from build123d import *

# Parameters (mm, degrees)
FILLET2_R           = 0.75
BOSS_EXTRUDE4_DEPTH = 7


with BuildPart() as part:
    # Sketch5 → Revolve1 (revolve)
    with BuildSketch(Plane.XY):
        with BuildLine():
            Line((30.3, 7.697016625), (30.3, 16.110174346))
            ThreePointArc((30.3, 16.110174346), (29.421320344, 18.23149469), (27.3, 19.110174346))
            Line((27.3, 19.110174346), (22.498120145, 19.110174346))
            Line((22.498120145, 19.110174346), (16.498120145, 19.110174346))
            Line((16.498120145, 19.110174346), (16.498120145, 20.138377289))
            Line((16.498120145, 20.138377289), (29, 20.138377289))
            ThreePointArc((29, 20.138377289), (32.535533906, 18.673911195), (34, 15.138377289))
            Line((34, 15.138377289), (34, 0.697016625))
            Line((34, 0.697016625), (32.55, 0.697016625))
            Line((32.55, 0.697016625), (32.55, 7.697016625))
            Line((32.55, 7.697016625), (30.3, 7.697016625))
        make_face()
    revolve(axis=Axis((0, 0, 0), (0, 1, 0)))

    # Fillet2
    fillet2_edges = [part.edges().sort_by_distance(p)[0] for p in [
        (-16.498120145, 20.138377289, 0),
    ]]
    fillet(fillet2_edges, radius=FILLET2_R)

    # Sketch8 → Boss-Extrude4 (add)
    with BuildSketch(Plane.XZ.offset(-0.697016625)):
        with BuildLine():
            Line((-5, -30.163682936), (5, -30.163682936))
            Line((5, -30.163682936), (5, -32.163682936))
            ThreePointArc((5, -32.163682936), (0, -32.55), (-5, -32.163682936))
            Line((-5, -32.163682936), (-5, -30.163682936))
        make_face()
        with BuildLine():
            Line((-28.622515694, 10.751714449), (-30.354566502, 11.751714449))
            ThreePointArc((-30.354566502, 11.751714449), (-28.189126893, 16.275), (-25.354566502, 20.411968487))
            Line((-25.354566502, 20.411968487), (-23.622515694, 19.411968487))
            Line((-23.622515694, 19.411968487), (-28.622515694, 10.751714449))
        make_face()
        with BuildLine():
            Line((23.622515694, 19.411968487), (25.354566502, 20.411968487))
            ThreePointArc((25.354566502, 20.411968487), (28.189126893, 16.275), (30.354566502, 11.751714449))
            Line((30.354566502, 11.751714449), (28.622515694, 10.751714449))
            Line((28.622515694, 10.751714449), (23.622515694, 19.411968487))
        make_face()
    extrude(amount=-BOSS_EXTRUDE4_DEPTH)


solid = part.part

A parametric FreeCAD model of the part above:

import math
import FreeCAD as App
import Part
import Sketcher

V = App.Vector
Q = App.Units.Quantity


def edges_at(feature, points):
    """Names of the edges that pass closest to the given points."""
    edges = feature.Shape.Edges
    near = lambda p: min(range(len(edges)), key=lambda i: edges[i].distToShape(Part.Vertex(*p))[0])
    return sorted({f"Edge{near(p) + 1}" for p in points})

doc = App.newDocument("Part")
params = doc.addObject("Spreadsheet::Sheet", "Params")
for row, (alias, value) in enumerate([
    ("sketch1_radius", "5 mm"),
    ("sketch1_radius2", "3 mm"),
    ("sketch1_height", "7 mm"),
    ("sketch1_width", "2.25 mm"),
    ("sketch1_width2", "1.45 mm"),
    ("revolution_angle", "360 deg"),
    ("fillet_radius", "0.75 mm"),
    ("sketch2_width", "10 mm"),
    ("sketch2_height", "2 mm"),
    ("sketch2_radius", "32.55 mm"),
    ("sketch2_length", "2 mm"),
    ("sketch2_length2", "10 mm"),
    ("pad1_length", "7 mm"),
], start=1):
    params.set(f"A{row}", alias)
    params.set(f"B{row}", "=" + value)
    params.setAlias(f"B{row}", alias)

body = doc.addObject("PartDesign::Body", "Body")

sketch1 = body.newObject("Sketcher::SketchObject", "Sketch")
sketch1.AttachmentSupport = (doc.getObject("XY_Plane"), [""])
sketch1.MapMode = "FlatFace"
sketch1.addGeometry(Part.LineSegment(V(30.3, 16.1, 0), V(30.3, 7.7, 0)), False)
sketch1.addGeometry(Part.LineSegment(V(30.3, 7.7, 0), V(32.5, 7.7, 0)), False)
sketch1.addGeometry(Part.LineSegment(V(32.5, 7.7, 0), V(32.5, 0.7, 0)), False)
sketch1.addGeometry(Part.LineSegment(V(32.5, 0.7, 0), V(34, 0.7, 0)), False)
sketch1.addGeometry(Part.LineSegment(V(34, 0.7, 0), V(34, 15.1, 0)), False)
sketch1.addGeometry(Part.ArcOfCircle(Part.Circle(V(29, 15.1, 0), V(0, 0, 1), 5), math.radians(0), math.radians(90)), False)
sketch1.addGeometry(Part.LineSegment(V(29, 20.1, 0), V(16.5, 20.1, 0)), False)
sketch1.addGeometry(Part.LineSegment(V(16.5, 20.1, 0), V(16.5, 19.1, 0)), False)
sketch1.addGeometry(Part.LineSegment(V(16.5, 19.1, 0), V(27.3, 19.1, 0)), False)
sketch1.addGeometry(Part.ArcOfCircle(Part.Circle(V(27.3, 16.1, 0), V(0, 0, 1), 3), math.radians(0), math.radians(90)), False)
sketch1.addConstraint(Sketcher.Constraint("Coincident", 0, 2, 1, 1))
sketch1.addConstraint(Sketcher.Constraint("Coincident", 1, 2, 2, 1))
sketch1.addConstraint(Sketcher.Constraint("Coincident", 2, 2, 3, 1))
sketch1.addConstraint(Sketcher.Constraint("Coincident", 3, 2, 4, 1))
sketch1.addConstraint(Sketcher.Constraint("Tangent", 4, 2, 5, 1))
sketch1.addConstraint(Sketcher.Constraint("Tangent", 5, 2, 6, 1))
sketch1.addConstraint(Sketcher.Constraint("Coincident", 6, 2, 7, 1))
sketch1.addConstraint(Sketcher.Constraint("Coincident", 7, 2, 8, 1))
sketch1.addConstraint(Sketcher.Constraint("Tangent", 8, 2, 9, 2))
sketch1.addConstraint(Sketcher.Constraint("Tangent", 9, 1, 0, 1))
sketch1.addConstraint(Sketcher.Constraint("Vertical", 0))
sketch1.addConstraint(Sketcher.Constraint("Horizontal", 1))
sketch1.addConstraint(Sketcher.Constraint("Vertical", 2))
sketch1.addConstraint(Sketcher.Constraint("Horizontal", 3))
sketch1.addConstraint(Sketcher.Constraint("Vertical", 4))
sketch1.addConstraint(Sketcher.Constraint("Horizontal", 6))
sketch1.addConstraint(Sketcher.Constraint("Vertical", 7))
sketch1.addConstraint(Sketcher.Constraint("Horizontal", 8))
sketch1.addConstraint(Sketcher.Constraint("Radius", 5, Q("5 mm")))
sketch1.addConstraint(Sketcher.Constraint("Radius", 9, Q("3 mm")))
sketch1.addConstraint(Sketcher.Constraint("DistanceY", 2, 2, 2, 1, Q("7 mm")))
sketch1.addConstraint(Sketcher.Constraint("DistanceX", -1, 1, 5, 3, Q("29 mm")))
sketch1.addConstraint(Sketcher.Constraint("DistanceX", 1, 1, 1, 2, Q("2.25 mm")))
sketch1.addConstraint(Sketcher.Constraint("DistanceX", 3, 1, 3, 2, Q("1.45 mm")))
sketch1.addConstraint(Sketcher.Constraint("DistanceX", 6, 2, 6, 1, Q("12.50188 mm")))
sketch1.addConstraint(Sketcher.Constraint("DistanceY", 4, 1, 4, 2, Q("14.441361 mm")))
sketch1.addConstraint(Sketcher.Constraint("DistanceY", 0, 2, 0, 1, Q("8.413158 mm")))
sketch1.addConstraint(Sketcher.Constraint("DistanceY", -1, 1, 5, 3, Q("15.138377 mm")))
sketch1.setExpression("Constraints[18]", "Params.sketch1_radius")
sketch1.setExpression("Constraints[19]", "Params.sketch1_radius2")
sketch1.setExpression("Constraints[20]", "Params.sketch1_height")
sketch1.setExpression("Constraints[22]", "Params.sketch1_width")
sketch1.setExpression("Constraints[23]", "Params.sketch1_width2")
revolution = body.newObject("PartDesign::Revolution", "Revolution")
revolution.Profile = sketch1
revolution.ReferenceAxis = (sketch1, ["V_Axis"])
revolution.setExpression("Angle", "Params.revolution_angle")
doc.recompute()

fillet = body.newObject("PartDesign::Fillet", "Fillet")
fillet.Base = (revolution, edges_at(revolution, [(-16.498, 20.138, 0)]))
fillet.setExpression("Radius", "Params.fillet_radius")

sketch2 = body.newObject("Sketcher::SketchObject", "Sketch001")
sketch2.AttachmentSupport = (doc.getObject("XZ_Plane"), [""])
sketch2.MapMode = "FlatFace"
sketch2.AttachmentOffset = App.Placement(V(0, 0, -0.697017), App.Rotation())
sketch2.addGeometry(Part.LineSegment(V(5, -30.2, 0), V(-5, -30.2, 0)), False)
sketch2.addGeometry(Part.LineSegment(V(-5, -30.2, 0), V(-5, -32.2, 0)), False)
sketch2.addGeometry(Part.ArcOfCircle(Part.Circle(V(0, 0, 0), V(0, 0, 1), 32.6), math.radians(-98.84), math.radians(-81.16)), False)
sketch2.addGeometry(Part.LineSegment(V(5, -32.2, 0), V(5, -30.2, 0)), False)
sketch2.addGeometry(Part.LineSegment(V(-30.4, 11.8, 0), V(-28.6, 10.8, 0)), False)
sketch2.addGeometry(Part.LineSegment(V(-28.6, 10.8, 0), V(-23.6, 19.4, 0)), False)
sketch2.addGeometry(Part.LineSegment(V(-23.6, 19.4, 0), V(-25.4, 20.4, 0)), False)
sketch2.addGeometry(Part.ArcOfCircle(Part.Circle(V(0, 0, 0), V(0, 0, 1), 32.6), math.radians(141.16), math.radians(158.84)), False)
sketch2.addGeometry(Part.LineSegment(V(25.4, 20.4, 0), V(23.6, 19.4, 0)), False)
sketch2.addGeometry(Part.LineSegment(V(23.6, 19.4, 0), V(28.6, 10.8, 0)), False)
sketch2.addGeometry(Part.LineSegment(V(28.6, 10.8, 0), V(30.4, 11.8, 0)), False)
sketch2.addGeometry(Part.ArcOfCircle(Part.Circle(V(0, 0, 0), V(0, 0, 1), 32.6), math.radians(21.16), math.radians(38.84)), False)
sketch2.addConstraint(Sketcher.Constraint("Coincident", 0, 2, 1, 1))
sketch2.addConstraint(Sketcher.Constraint("Coincident", 1, 2, 2, 1))
sketch2.addConstraint(Sketcher.Constraint("Coincident", 2, 2, 3, 1))
sketch2.addConstraint(Sketcher.Constraint("Coincident", 3, 2, 0, 1))
sketch2.addConstraint(Sketcher.Constraint("Coincident", 4, 2, 5, 1))
sketch2.addConstraint(Sketcher.Constraint("Coincident", 5, 2, 6, 1))
sketch2.addConstraint(Sketcher.Constraint("Coincident", 6, 2, 7, 1))
sketch2.addConstraint(Sketcher.Constraint("Coincident", 7, 2, 4, 1))
sketch2.addConstraint(Sketcher.Constraint("Coincident", 8, 2, 9, 1))
sketch2.addConstraint(Sketcher.Constraint("Coincident", 9, 2, 10, 1))
sketch2.addConstraint(Sketcher.Constraint("Coincident", 10, 2, 11, 1))
sketch2.addConstraint(Sketcher.Constraint("Coincident", 11, 2, 8, 1))
sketch2.addConstraint(Sketcher.Constraint("Horizontal", 0))
sketch2.addConstraint(Sketcher.Constraint("Vertical", 1))
sketch2.addConstraint(Sketcher.Constraint("Vertical", 3))
sketch2.addConstraint(Sketcher.Constraint("Coincident", 2, 3, -1, 1))
sketch2.addConstraint(Sketcher.Constraint("Coincident", 7, 3, -1, 1))
sketch2.addConstraint(Sketcher.Constraint("Coincident", 11, 3, -1, 1))
sketch2.addConstraint(Sketcher.Constraint("Equal", 2, 7))
sketch2.addConstraint(Sketcher.Constraint("Equal", 7, 11))
sketch2.addConstraint(Sketcher.Constraint("Symmetric", 5, 2, 8, 2, -2))
sketch2.addConstraint(Sketcher.Constraint("Symmetric", 4, 2, 9, 2, -2))
sketch2.addConstraint(Sketcher.Constraint("Perpendicular", 4, 5))
sketch2.addConstraint(Sketcher.Constraint("Perpendicular", 5, 6))
sketch2.addConstraint(Sketcher.Constraint("Perpendicular", 8, 9))
sketch2.addConstraint(Sketcher.Constraint("Perpendicular", 9, 10))
sketch2.addConstraint(Sketcher.Constraint("Horizontal", 1, 2, 2, 2))
sketch2.addConstraint(Sketcher.Constraint("Equal", 4, 6))
sketch2.addConstraint(Sketcher.Constraint("DistanceX", 0, 2, 0, 1, Q("10 mm")))
sketch2.addConstraint(Sketcher.Constraint("DistanceY", 1, 2, 1, 1, Q("2 mm")))
sketch2.addConstraint(Sketcher.Constraint("Angle", 4, Q("-30 deg")))
sketch2.addConstraint(Sketcher.Constraint("Radius", 2, Q("32.55 mm")))
sketch2.addConstraint(Sketcher.Constraint("Distance", 4, Q("2 mm")))
sketch2.addConstraint(Sketcher.Constraint("Distance", 5, Q("10 mm")))
sketch2.setExpression("Constraints[28]", "Params.sketch2_width")
sketch2.setExpression("Constraints[29]", "Params.sketch2_height")
sketch2.setExpression("Constraints[31]", "Params.sketch2_radius")
sketch2.setExpression("Constraints[32]", "Params.sketch2_length")
sketch2.setExpression("Constraints[33]", "Params.sketch2_length2")
pad1 = body.newObject("PartDesign::Pad", "Pad")
pad1.Profile = sketch2
pad1.setExpression("Length", "Params.pad1_length")
pad1.Reversed = True

doc.recompute()
